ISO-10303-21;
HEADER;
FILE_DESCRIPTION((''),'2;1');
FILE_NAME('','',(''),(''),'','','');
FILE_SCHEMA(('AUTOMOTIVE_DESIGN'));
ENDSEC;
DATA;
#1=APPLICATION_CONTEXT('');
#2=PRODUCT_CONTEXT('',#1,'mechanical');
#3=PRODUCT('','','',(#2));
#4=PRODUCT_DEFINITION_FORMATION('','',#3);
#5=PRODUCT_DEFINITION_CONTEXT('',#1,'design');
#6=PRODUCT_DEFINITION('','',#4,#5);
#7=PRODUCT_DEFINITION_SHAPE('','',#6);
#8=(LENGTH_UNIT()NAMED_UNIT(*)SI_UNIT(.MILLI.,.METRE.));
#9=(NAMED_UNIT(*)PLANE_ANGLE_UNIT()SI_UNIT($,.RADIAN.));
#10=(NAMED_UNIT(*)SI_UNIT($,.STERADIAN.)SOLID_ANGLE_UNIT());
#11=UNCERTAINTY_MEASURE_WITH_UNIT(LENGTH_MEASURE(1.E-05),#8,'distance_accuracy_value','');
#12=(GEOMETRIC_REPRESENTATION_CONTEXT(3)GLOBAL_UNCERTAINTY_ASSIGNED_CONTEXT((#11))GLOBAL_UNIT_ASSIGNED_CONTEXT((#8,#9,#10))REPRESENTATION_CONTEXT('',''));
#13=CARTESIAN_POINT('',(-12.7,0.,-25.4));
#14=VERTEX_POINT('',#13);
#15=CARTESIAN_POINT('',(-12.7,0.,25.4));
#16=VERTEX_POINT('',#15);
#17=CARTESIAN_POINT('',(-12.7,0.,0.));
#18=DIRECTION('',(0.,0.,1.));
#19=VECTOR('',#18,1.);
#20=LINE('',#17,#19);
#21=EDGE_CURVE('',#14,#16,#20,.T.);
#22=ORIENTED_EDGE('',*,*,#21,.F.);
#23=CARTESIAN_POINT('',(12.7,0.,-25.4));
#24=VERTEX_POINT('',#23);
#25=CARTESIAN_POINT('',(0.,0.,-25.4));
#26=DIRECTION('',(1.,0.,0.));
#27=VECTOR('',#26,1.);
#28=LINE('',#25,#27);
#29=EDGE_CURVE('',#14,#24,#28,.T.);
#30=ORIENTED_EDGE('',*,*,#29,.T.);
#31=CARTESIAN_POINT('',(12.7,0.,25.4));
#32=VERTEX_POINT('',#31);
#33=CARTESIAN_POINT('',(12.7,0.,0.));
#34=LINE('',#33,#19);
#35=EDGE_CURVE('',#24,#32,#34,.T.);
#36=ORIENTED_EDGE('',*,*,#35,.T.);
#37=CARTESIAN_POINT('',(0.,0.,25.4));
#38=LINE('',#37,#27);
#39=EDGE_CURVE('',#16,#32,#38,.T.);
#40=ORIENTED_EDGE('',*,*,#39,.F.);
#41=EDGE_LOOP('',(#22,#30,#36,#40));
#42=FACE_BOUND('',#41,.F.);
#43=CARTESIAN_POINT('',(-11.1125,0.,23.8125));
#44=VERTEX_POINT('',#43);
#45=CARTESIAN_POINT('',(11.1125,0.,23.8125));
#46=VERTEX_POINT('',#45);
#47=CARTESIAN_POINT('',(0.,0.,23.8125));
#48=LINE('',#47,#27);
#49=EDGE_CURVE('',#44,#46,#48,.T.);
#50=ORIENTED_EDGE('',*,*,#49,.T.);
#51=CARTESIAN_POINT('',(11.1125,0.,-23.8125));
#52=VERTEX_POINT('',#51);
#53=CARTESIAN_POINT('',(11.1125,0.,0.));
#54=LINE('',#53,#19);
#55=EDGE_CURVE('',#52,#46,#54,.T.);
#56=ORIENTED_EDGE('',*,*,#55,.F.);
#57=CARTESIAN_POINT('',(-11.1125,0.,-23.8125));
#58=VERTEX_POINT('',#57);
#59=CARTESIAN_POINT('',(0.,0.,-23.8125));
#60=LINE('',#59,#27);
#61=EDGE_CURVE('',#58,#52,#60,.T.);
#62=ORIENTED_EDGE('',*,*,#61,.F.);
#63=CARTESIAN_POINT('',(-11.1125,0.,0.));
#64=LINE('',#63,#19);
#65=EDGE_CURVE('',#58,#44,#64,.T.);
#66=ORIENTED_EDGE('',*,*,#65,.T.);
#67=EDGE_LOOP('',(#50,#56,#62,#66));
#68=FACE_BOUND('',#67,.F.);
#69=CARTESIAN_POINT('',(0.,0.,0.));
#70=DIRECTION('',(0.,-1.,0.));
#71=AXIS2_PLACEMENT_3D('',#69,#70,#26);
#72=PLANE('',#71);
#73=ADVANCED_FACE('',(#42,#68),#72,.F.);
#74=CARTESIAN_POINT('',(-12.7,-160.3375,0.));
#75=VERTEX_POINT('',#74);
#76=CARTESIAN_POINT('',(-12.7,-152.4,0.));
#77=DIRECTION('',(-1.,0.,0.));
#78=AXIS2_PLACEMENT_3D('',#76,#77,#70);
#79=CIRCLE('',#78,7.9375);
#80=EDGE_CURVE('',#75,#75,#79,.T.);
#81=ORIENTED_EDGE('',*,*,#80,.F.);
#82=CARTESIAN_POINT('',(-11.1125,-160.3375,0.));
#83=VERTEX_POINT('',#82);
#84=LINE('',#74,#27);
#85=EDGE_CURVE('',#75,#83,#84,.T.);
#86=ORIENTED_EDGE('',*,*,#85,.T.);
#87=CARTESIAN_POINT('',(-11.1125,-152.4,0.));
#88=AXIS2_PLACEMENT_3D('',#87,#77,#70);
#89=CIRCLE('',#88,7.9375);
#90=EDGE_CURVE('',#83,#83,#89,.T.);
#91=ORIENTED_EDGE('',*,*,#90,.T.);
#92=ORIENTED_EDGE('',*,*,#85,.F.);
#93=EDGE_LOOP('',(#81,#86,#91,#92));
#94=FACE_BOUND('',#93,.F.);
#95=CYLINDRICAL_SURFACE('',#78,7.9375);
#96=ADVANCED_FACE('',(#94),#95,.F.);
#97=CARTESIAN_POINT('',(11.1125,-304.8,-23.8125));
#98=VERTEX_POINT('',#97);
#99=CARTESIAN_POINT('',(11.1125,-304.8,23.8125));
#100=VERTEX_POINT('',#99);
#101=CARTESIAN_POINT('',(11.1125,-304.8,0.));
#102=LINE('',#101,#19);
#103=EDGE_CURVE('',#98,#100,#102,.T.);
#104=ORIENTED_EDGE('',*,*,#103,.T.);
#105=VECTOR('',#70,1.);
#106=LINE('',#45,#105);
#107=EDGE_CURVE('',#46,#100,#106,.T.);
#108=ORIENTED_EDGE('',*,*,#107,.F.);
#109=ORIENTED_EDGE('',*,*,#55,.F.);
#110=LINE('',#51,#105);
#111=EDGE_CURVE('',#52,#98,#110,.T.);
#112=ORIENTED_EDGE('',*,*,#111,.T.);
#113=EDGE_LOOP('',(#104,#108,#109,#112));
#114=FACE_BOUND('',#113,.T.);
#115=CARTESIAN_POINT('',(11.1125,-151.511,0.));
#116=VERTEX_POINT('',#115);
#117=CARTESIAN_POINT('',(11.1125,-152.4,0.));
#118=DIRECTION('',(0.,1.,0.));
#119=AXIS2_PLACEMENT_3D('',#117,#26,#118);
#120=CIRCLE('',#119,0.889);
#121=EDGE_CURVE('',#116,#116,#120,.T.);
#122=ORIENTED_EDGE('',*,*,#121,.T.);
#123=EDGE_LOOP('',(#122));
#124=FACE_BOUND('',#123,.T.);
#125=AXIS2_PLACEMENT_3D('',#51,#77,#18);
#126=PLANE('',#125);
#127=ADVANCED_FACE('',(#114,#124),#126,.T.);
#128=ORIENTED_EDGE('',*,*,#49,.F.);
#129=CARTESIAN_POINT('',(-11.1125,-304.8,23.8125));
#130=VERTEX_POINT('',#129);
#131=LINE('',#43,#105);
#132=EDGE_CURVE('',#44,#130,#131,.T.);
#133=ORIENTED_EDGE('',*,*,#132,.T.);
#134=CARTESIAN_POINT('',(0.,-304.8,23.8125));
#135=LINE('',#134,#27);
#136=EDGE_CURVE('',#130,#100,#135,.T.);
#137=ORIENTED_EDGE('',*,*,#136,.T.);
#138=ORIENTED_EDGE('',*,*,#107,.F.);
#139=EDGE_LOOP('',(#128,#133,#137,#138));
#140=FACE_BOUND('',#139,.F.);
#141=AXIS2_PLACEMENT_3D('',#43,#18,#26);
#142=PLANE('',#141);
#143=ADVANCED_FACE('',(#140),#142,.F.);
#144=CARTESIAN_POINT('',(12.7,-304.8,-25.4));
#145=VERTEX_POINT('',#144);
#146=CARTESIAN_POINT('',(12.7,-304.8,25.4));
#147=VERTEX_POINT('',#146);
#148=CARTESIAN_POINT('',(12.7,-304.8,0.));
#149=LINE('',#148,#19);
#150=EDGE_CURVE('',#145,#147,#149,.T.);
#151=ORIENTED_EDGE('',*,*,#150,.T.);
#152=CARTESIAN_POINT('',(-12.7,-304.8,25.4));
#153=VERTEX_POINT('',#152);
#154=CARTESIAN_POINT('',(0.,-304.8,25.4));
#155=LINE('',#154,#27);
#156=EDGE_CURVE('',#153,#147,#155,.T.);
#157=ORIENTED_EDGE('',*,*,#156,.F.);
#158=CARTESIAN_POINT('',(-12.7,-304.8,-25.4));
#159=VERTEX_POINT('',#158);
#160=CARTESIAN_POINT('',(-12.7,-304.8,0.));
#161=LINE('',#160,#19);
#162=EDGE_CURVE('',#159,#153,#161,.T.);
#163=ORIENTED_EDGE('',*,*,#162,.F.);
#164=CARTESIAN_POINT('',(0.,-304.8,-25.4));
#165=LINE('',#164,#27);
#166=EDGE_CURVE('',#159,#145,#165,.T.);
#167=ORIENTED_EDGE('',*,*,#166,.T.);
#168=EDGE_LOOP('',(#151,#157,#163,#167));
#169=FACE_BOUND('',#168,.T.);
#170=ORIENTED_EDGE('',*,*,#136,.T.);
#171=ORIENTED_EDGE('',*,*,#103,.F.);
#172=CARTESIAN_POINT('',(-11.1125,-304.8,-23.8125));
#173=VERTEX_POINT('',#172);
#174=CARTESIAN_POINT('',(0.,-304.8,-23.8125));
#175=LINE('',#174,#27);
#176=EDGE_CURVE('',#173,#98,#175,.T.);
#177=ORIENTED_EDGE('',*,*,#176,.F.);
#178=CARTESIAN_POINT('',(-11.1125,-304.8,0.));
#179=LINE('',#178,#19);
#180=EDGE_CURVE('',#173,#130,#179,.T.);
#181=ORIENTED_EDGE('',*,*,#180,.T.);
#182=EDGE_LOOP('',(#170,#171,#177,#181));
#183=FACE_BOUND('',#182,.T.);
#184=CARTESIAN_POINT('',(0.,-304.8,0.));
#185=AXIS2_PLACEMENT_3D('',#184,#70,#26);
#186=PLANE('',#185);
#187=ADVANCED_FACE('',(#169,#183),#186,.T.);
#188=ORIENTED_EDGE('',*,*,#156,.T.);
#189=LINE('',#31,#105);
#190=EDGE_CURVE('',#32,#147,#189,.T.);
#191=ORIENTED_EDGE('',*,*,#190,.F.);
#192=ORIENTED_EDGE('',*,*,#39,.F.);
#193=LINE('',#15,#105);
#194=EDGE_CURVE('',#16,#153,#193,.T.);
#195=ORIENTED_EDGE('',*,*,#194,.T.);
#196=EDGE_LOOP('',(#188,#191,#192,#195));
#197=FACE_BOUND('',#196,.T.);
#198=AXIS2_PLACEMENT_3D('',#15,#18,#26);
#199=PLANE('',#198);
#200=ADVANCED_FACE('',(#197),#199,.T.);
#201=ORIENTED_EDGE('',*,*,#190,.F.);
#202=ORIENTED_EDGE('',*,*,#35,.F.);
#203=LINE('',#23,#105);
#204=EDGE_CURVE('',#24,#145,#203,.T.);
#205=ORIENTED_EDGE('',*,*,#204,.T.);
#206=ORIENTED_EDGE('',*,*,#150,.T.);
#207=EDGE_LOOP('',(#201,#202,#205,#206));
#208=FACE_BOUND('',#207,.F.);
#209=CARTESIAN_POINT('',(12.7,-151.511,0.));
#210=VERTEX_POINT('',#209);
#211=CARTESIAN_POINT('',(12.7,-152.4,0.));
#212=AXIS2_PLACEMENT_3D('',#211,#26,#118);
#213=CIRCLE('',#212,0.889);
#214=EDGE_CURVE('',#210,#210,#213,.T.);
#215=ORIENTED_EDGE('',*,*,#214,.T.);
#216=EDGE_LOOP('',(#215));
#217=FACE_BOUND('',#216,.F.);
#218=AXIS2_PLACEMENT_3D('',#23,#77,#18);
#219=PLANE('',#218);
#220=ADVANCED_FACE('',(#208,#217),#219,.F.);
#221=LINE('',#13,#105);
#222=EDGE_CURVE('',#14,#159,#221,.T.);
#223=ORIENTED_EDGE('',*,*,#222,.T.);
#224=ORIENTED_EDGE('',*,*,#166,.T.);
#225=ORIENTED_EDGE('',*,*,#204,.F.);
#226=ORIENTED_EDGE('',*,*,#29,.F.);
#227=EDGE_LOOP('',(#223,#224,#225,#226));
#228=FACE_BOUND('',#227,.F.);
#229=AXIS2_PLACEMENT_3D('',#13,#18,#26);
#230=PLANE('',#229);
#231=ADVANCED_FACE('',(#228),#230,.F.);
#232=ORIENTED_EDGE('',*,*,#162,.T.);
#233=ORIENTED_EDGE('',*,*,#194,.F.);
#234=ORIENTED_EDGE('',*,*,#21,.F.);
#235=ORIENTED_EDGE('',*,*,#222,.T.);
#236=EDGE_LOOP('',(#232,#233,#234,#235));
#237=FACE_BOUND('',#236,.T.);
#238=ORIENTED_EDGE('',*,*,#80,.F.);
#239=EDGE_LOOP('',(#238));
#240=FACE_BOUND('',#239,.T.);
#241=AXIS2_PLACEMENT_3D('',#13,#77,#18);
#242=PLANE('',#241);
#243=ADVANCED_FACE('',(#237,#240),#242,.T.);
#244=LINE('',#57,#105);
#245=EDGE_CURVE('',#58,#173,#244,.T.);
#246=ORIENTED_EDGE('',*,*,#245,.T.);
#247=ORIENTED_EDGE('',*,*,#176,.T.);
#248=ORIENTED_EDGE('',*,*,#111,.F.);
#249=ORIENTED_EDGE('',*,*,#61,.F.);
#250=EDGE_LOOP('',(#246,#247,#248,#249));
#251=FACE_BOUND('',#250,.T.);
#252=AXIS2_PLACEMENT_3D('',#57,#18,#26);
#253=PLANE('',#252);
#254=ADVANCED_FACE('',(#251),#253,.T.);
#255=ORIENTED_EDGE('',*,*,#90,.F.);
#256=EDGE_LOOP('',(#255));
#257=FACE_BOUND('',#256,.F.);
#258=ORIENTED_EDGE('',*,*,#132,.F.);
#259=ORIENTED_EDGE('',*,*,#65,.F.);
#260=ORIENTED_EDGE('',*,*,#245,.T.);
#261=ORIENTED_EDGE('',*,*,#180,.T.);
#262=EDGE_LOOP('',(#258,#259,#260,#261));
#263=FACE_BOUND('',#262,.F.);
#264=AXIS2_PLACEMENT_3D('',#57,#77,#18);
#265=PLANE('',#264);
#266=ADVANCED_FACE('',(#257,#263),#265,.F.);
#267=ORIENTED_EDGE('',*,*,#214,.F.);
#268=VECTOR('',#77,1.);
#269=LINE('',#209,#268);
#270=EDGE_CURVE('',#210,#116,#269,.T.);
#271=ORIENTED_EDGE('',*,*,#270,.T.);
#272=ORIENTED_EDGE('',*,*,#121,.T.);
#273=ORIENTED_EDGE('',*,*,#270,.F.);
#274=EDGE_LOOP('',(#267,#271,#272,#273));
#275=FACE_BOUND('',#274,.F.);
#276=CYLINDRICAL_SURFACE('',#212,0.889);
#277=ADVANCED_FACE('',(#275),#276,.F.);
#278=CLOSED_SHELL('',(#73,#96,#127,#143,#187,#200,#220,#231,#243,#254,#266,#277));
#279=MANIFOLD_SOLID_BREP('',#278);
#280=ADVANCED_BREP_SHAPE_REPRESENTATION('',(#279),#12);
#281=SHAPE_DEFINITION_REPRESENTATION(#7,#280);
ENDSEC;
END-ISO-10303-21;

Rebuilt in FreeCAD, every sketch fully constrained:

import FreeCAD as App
import Part
import Sketcher

V = App.Vector
Q = App.Units.Quantity


def add_polygon(sketch, points):
    """Adds a closed chain of lines whose ends are joined by coincident constraints."""
    first, n = sketch.GeometryCount, len(points)
    for a, b in zip(points, points[1:] + points[:1]):
        sketch.addGeometry(Part.LineSegment(App.Vector(*a, 0), App.Vector(*b, 0)), False)
    for i in range(n):
        sketch.addConstraint(Sketcher.Constraint("Coincident", first + i, 2, first + (i + 1) % n, 1))

doc = App.newDocument("Part")
body = doc.addObject("PartDesign::Body", "Body")

# Sketch on XZ plane
sketch1 = body.newObject("Sketcher::SketchObject", "Sketch")
sketch1.AttachmentSupport = (doc.getObject("XZ_Plane"), [""])
sketch1.MapMode = "FlatFace"
add_polygon(sketch1, [(-13, 25), (-13, -25), (13, -25), (13, 25)])  # lines 0-3
add_polygon(sketch1, [(11, -24), (-11, -24), (-11, 24), (11, 24)])  # lines 4-7
sketch1.addConstraint([
    Sketcher.Constraint("Vertical", 0),
    Sketcher.Constraint("Horizontal", 1),
    Sketcher.Constraint("Vertical", 2),
    Sketcher.Constraint("Horizontal", 3),
    Sketcher.Constraint("Horizontal", 4),
    Sketcher.Constraint("Vertical", 5),
    Sketcher.Constraint("Horizontal", 6),
    Sketcher.Constraint("Vertical", 7),
    Sketcher.Constraint("Symmetric", 0, 2, 2, 2, -1, 1),
    Sketcher.Constraint("Symmetric", 4, 2, 6, 2, -1, 1),
    Sketcher.Constraint("DistanceX", 1, 1, 1, 2, Q("1 in")),
    Sketcher.Constraint("DistanceY", 0, 2, 0, 1, Q("2 in")),
    Sketcher.Constraint("DistanceX", 4, 2, 4, 1, Q("0.875 in")),
    Sketcher.Constraint("DistanceY", 5, 1, 5, 2, Q("1.875 in")),
])
pad1 = body.newObject("PartDesign::Pad", "Pad")
pad1.Profile = sketch1
pad1.Length = Q("12 in")

# Sketch on YZ plane
sketch2 = body.newObject("Sketcher::SketchObject", "Sketch001")
sketch2.AttachmentSupport = (doc.getObject("YZ_Plane"), [""])
sketch2.MapMode = "FlatFace"
sketch2.AttachmentOffset = App.Placement(V(0, 0, -0.5 * 25.4), App.Rotation())
sketch2.addGeometry(Part.Circle(V(-152, 0, 0), V(0, 0, 1), 8), False)
sketch2.addConstraint([
    Sketcher.Constraint("PointOnObject", 0, 3, -1),
    Sketcher.Constraint("Diameter", 0, Q("0.625 in")),
    Sketcher.Constraint("DistanceX", 0, 3, -1, 1, Q("6 in")),
])
pocket1 = body.newObject("PartDesign::Pocket", "Pocket")
pocket1.Profile = sketch2
pocket1.Length = Q("0.0625 in")
pocket1.Reversed = True

# Sketch on YZ plane
sketch3 = body.newObject("Sketcher::SketchObject", "Sketch002")
sketch3.AttachmentSupport = (doc.getObject("YZ_Plane"), [""])
sketch3.MapMode = "FlatFace"
sketch3.AttachmentOffset = App.Placement(V(0, 0, 0.5 * 25.4), App.Rotation())
sketch3.addGeometry(Part.Circle(V(-152.4, 0, 0), V(0, 0, 1), 0.9), False)
sketch3.addConstraint([
    Sketcher.Constraint("PointOnObject", 0, 3, -1),
    Sketcher.Constraint("Diameter", 0, Q("0.07 in")),
    Sketcher.Constraint("DistanceX", 0, 3, -1, 1, Q("6 in")),
])
pocket2 = body.newObject("PartDesign::Pocket", "Pocket001")
pocket2.Profile = sketch3
pocket2.Length = Q("0.0625 in")

doc.recompute()
